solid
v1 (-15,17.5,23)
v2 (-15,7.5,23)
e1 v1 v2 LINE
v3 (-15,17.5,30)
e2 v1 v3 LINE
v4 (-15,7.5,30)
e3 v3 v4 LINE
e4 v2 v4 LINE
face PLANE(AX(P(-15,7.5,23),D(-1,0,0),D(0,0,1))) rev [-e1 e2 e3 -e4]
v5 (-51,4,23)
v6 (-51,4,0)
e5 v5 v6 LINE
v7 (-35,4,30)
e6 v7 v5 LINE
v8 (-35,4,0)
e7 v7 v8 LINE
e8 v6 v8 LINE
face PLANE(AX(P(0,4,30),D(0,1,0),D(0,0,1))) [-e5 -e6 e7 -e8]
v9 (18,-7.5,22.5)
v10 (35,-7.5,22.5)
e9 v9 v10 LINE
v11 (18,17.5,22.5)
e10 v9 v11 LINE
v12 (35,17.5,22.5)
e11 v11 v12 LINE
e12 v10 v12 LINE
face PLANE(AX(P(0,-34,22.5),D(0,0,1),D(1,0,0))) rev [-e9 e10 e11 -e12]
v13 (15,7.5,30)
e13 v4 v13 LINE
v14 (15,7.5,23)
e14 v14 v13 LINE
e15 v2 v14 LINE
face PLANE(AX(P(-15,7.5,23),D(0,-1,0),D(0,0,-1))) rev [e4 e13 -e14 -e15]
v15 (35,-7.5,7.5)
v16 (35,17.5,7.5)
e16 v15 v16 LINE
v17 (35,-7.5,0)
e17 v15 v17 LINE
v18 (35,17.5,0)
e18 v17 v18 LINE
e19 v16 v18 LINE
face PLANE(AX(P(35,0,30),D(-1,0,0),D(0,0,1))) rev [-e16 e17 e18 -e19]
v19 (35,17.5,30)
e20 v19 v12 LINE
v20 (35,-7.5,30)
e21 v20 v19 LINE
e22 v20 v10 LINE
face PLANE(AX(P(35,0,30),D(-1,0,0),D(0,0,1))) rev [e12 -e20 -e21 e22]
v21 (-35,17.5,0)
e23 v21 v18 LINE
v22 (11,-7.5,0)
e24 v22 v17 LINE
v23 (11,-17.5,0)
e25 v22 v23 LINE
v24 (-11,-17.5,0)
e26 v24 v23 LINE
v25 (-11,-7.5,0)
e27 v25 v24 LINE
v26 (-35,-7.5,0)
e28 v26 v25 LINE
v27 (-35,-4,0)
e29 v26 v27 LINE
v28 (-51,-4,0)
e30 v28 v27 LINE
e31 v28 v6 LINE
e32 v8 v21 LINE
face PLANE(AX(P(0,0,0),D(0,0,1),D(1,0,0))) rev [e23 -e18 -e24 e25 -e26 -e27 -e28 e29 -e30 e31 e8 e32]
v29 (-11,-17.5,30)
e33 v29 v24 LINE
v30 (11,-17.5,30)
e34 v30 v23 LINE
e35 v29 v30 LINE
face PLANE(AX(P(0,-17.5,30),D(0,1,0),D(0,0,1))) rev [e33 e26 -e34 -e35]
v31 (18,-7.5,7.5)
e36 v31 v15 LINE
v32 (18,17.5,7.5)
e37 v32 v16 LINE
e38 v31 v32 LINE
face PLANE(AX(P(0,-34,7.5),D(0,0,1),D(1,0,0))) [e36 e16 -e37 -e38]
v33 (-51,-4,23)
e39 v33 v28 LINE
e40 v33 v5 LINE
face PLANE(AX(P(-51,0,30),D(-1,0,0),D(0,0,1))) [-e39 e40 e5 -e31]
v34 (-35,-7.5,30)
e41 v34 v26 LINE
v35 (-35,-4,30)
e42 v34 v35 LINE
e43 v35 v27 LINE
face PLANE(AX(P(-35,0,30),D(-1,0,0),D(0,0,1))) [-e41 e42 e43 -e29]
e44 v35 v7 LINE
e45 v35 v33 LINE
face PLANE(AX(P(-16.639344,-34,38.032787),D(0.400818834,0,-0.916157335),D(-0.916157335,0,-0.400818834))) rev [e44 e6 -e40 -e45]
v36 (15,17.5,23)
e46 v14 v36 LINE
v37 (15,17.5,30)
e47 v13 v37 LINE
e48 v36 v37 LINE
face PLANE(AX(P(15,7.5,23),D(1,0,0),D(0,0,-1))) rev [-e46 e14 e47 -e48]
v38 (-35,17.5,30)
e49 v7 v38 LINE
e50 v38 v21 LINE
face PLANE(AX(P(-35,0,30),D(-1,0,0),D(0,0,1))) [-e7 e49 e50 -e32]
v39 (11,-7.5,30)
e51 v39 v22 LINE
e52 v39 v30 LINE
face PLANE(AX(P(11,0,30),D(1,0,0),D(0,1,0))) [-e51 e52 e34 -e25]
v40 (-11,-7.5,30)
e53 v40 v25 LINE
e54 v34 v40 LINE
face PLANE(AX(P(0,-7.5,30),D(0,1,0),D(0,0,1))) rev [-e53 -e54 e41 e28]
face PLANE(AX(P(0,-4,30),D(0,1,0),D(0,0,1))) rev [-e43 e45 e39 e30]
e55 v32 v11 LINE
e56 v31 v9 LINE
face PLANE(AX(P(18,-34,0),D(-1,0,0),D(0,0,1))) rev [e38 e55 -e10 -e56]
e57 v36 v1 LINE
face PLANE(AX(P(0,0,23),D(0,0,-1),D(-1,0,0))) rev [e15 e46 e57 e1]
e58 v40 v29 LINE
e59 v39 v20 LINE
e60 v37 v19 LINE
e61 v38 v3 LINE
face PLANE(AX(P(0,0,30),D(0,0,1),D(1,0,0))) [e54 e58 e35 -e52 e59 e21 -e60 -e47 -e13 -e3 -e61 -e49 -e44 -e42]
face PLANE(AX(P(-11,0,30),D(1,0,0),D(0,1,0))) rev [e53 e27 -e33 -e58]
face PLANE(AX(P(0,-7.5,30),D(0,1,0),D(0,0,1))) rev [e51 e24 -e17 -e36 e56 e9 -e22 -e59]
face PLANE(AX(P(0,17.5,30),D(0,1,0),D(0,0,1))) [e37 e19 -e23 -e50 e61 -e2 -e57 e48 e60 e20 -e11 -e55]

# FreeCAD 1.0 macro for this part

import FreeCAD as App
import Part
import Sketcher

doc = App.newDocument("Part")
body = doc.addObject("PartDesign::Body", "Body")

sketch1 = doc.addObject("Sketcher::SketchObject", "Sketch")
body.addObject(sketch1)
sketch1.AttachmentSupport = (doc.XY_Plane, [""])
sketch1.MapMode = "FlatFace"
sketch1.addGeometry(Part.LineSegment(App.Vector(-35, -7.5, 0), App.Vector(-11, -7.5, 0)), False)
sketch1.addGeometry(Part.LineSegment(App.Vector(-11, -7.5, 0), App.Vector(-11, -17.5, 0)), False)
sketch1.addGeometry(Part.LineSegment(App.Vector(-11, -17.5, 0), App.Vector(11, -17.5, 0)), False)
sketch1.addGeometry(Part.LineSegment(App.Vector(11, -17.5, 0), App.Vector(11, -7.5, 0)), False)
sketch1.addGeometry(Part.LineSegment(App.Vector(11, -7.5, 0), App.Vector(35, -7.5, 0)), False)
sketch1.addGeometry(Part.LineSegment(App.Vector(35, -7.5, 0), App.Vector(35, 17.5, 0)), False)
sketch1.addGeometry(Part.LineSegment(App.Vector(35, 17.5, 0), App.Vector(-35, 17.5, 0)), False)
sketch1.addGeometry(Part.LineSegment(App.Vector(-35, 17.5, 0), App.Vector(-35, 4, 0)), False)
sketch1.addGeometry(Part.LineSegment(App.Vector(-35, 4, 0), App.Vector(-51, 4, 0)), False)
sketch1.addGeometry(Part.LineSegment(App.Vector(-51, 4, 0), App.Vector(-51, -4, 0)), False)
sketch1.addGeometry(Part.LineSegment(App.Vector(-51, -4, 0), App.Vector(-35, -4, 0)), False)
sketch1.addGeometry(Part.LineSegment(App.Vector(-35, -4, 0), App.Vector(-35, -7.5, 0)), False)
sketch1.addConstraint(Sketcher.Constraint("Coincident", 0, 2, 1, 1))
sketch1.addConstraint(Sketcher.Constraint("Coincident", 1, 2, 2, 1))
sketch1.addConstraint(Sketcher.Constraint("Coincident", 2, 2, 3, 1))
sketch1.addConstraint(Sketcher.Constraint("Coincident", 3, 2, 4, 1))
sketch1.addConstraint(Sketcher.Constraint("Coincident", 4, 2, 5, 1))
sketch1.addConstraint(Sketcher.Constraint("Coincident", 5, 2, 6, 1))
sketch1.addConstraint(Sketcher.Constraint("Coincident", 6, 2, 7, 1))
sketch1.addConstraint(Sketcher.Constraint("Coincident", 7, 2, 8, 1))
sketch1.addConstraint(Sketcher.Constraint("Coincident", 8, 2, 9, 1))
sketch1.addConstraint(Sketcher.Constraint("Coincident", 9, 2, 10, 1))
sketch1.addConstraint(Sketcher.Constraint("Coincident", 10, 2, 11, 1))
sketch1.addConstraint(Sketcher.Constraint("Coincident", 11, 2, 0, 1))
sketch1.addConstraint(Sketcher.Constraint("Horizontal", 0))
sketch1.addConstraint(Sketcher.Constraint("Vertical", 1))
sketch1.addConstraint(Sketcher.Constraint("Horizontal", 2))
sketch1.addConstraint(Sketcher.Constraint("Vertical", 3))
sketch1.addConstraint(Sketcher.Constraint("Horizontal", 4))
sketch1.addConstraint(Sketcher.Constraint("Vertical", 5))
sketch1.addConstraint(Sketcher.Constraint("Horizontal", 6))
sketch1.addConstraint(Sketcher.Constraint("Vertical", 7))
sketch1.addConstraint(Sketcher.Constraint("Horizontal", 8))
sketch1.addConstraint(Sketcher.Constraint("Vertical", 9))
sketch1.addConstraint(Sketcher.Constraint("Horizontal", 10))
sketch1.addConstraint(Sketcher.Constraint("Vertical", 11))
sketch1.addConstraint(Sketcher.Constraint("Symmetric", 0, 2, 3, 2, -2))
sketch1.addConstraint(Sketcher.Constraint("Symmetric", 7, 2, 10, 2, -1))
sketch1.addConstraint(Sketcher.Constraint("Equal", 0, 4))
sketch1.addConstraint(Sketcher.Constraint("DistanceX", 0, 1, 0, 2, 24.0))
sketch1.addConstraint(Sketcher.Constraint("DistanceX", 2, 1, 2, 2, 22.0))
sketch1.addConstraint(Sketcher.Constraint("DistanceX", 8, 2, 8, 1, 16.0))
sketch1.addConstraint(Sketcher.Constraint("DistanceY", 1, 2, 1, 1, 10.0))
sketch1.addConstraint(Sketcher.Constraint("DistanceY", 5, 1, 5, 2, 25.0))
sketch1.addConstraint(Sketcher.Constraint("DistanceY", 9, 2, 9, 1, 8.0))
sketch1.addConstraint(Sketcher.Constraint("DistanceY", 7, 2, 7, 1, 13.5))
pad1 = doc.addObject("PartDesign::Pad", "Pad")
body.addObject(pad1)
pad1.Profile = sketch1
pad1.Length = 30

sketch2 = doc.addObject("Sketcher::SketchObject", "Sketch001")
body.addObject(sketch2)
sketch2.AttachmentSupport = (doc.XZ_Plane, [""])
sketch2.MapMode = "FlatFace"
sketch2.AttachmentOffset = App.Placement(App.Vector(0, 0, 4), App.Rotation())
sketch2.addGeometry(Part.LineSegment(App.Vector(18, 22, 0), App.Vector(18, 8, 0)), False)
sketch2.addGeometry(Part.LineSegment(App.Vector(18, 8, 0), App.Vector(35, 8, 0)), False)
sketch2.addGeometry(Part.LineSegment(App.Vector(35, 8, 0), App.Vector(35, 22, 0)), False)
sketch2.addGeometry(Part.LineSegment(App.Vector(35, 22, 0), App.Vector(18, 22, 0)), False)
sketch2.addGeometry(Part.LineSegment(App.Vector(-35, 30, 0), App.Vector(-51, 30, 0)), False)
sketch2.addGeometry(Part.LineSegment(App.Vector(-51, 30, 0), App.Vector(-51, 23, 0)), False)
sketch2.addGeometry(Part.LineSegment(App.Vector(-51, 23, 0), App.Vector(-35, 30, 0)), False)
sketch2.addConstraint(Sketcher.Constraint("Coincident", 0, 2, 1, 1))
sketch2.addConstraint(Sketcher.Constraint("Coincident", 1, 2, 2, 1))
sketch2.addConstraint(Sketcher.Constraint("Coincident", 2, 2, 3, 1))
sketch2.addConstraint(Sketcher.Constraint("Coincident", 3, 2, 0, 1))
sketch2.addConstraint(Sketcher.Constraint("Coincident", 4, 2, 5, 1))
sketch2.addConstraint(Sketcher.Constraint("Coincident", 5, 2, 6, 1))
sketch2.addConstraint(Sketcher.Constraint("Coincident", 6, 2, 4, 1))
sketch2.addConstraint(Sketcher.Constraint("Vertical", 0))
sketch2.addConstraint(Sketcher.Constraint("Horizontal", 1))
sketch2.addConstraint(Sketcher.Constraint("Vertical", 2))
sketch2.addConstraint(Sketcher.Constraint("Horizontal", 3))
sketch2.addConstraint(Sketcher.Constraint("Horizontal", 4))
sketch2.addConstraint(Sketcher.Constraint("Vertical", 5))
sketch2.addConstraint(Sketcher.Constraint("DistanceX", 1, 1, 1, 2, 17.0))
sketch2.addConstraint(Sketcher.Constraint("DistanceX", 4, 2, 4, 1, 16.0))
sketch2.addConstraint(Sketcher.Constraint("DistanceY", 0, 2, 0, 1, 15.0))
sketch2.addConstraint(Sketcher.Constraint("DistanceY", 5, 2, 5, 1, 7.0))
sketch2.addConstraint(Sketcher.Constraint("DistanceX", -1, 1, 0, 2, 18.0))
sketch2.addConstraint(Sketcher.Constraint("DistanceX", 4, 2, -1, 1, 51.0))
sketch2.addConstraint(Sketcher.Constraint("DistanceY", -1, 1, 4, 2, 30.0))
sketch2.addConstraint(Sketcher.Constraint("DistanceY", -1, 1, 0, 2, 7.5))
pocket1 = doc.addObject("PartDesign::Pocket", "Pocket")
body.addObject(pocket1)
pocket1.Profile = sketch2
pocket1.Type = "ThroughAll"
pocket1.Midplane = True

sketch3 = doc.addObject("Sketcher::SketchObject", "Sketch002")
body.addObject(sketch3)
sketch3.AttachmentSupport = (doc.XY_Plane, [""])
sketch3.MapMode = "FlatFace"
sketch3.AttachmentOffset = App.Placement(App.Vector(0, 0, 30), App.Rotation())
sketch3.addGeometry(Part.LineSegment(App.Vector(-15, 18, 0), App.Vector(-15, 8, 0)), False)
sketch3.addGeometry(Part.LineSegment(App.Vector(-15, 8, 0), App.Vector(15, 8, 0)), False)
sketch3.addGeometry(Part.LineSegment(App.Vector(15, 8, 0), App.Vector(15, 18, 0)), False)
sketch3.addGeometry(Part.LineSegment(App.Vector(15, 18, 0), App.Vector(-15, 18, 0)), False)
sketch3.addConstraint(Sketcher.Constraint("Coincident", 0, 2, 1, 1))
sketch3.addConstraint(Sketcher.Constraint("Coincident", 1, 2, 2, 1))
sketch3.addConstraint(Sketcher.Constraint("Coincident", 2, 2, 3, 1))
sketch3.addConstraint(Sketcher.Constraint("Coincident", 3, 2, 0, 1))
sketch3.addConstraint(Sketcher.Constraint("Vertical", 0))
sketch3.addConstraint(Sketcher.Constraint("Horizontal", 1))
sketch3.addConstraint(Sketcher.Constraint("Vertical", 2))
sketch3.addConstraint(Sketcher.Constraint("Horizontal", 3))
sketch3.addConstraint(Sketcher.Constraint("DistanceX", 1, 1, 1, 2, 30.0))
sketch3.addConstraint(Sketcher.Constraint("DistanceY", 0, 2, 0, 1, 10.0))
sketch3.addConstraint(Sketcher.Constraint("DistanceX", 0, 2, -1, 1, 15.0))
sketch3.addConstraint(Sketcher.Constraint("DistanceY", -1, 1, 0, 2, 7.5))
pocket2 = doc.addObject("PartDesign::Pocket", "Pocket001")
body.addObject(pocket2)
pocket2.Profile = sketch3
pocket2.Length = 7

doc.recompute()
